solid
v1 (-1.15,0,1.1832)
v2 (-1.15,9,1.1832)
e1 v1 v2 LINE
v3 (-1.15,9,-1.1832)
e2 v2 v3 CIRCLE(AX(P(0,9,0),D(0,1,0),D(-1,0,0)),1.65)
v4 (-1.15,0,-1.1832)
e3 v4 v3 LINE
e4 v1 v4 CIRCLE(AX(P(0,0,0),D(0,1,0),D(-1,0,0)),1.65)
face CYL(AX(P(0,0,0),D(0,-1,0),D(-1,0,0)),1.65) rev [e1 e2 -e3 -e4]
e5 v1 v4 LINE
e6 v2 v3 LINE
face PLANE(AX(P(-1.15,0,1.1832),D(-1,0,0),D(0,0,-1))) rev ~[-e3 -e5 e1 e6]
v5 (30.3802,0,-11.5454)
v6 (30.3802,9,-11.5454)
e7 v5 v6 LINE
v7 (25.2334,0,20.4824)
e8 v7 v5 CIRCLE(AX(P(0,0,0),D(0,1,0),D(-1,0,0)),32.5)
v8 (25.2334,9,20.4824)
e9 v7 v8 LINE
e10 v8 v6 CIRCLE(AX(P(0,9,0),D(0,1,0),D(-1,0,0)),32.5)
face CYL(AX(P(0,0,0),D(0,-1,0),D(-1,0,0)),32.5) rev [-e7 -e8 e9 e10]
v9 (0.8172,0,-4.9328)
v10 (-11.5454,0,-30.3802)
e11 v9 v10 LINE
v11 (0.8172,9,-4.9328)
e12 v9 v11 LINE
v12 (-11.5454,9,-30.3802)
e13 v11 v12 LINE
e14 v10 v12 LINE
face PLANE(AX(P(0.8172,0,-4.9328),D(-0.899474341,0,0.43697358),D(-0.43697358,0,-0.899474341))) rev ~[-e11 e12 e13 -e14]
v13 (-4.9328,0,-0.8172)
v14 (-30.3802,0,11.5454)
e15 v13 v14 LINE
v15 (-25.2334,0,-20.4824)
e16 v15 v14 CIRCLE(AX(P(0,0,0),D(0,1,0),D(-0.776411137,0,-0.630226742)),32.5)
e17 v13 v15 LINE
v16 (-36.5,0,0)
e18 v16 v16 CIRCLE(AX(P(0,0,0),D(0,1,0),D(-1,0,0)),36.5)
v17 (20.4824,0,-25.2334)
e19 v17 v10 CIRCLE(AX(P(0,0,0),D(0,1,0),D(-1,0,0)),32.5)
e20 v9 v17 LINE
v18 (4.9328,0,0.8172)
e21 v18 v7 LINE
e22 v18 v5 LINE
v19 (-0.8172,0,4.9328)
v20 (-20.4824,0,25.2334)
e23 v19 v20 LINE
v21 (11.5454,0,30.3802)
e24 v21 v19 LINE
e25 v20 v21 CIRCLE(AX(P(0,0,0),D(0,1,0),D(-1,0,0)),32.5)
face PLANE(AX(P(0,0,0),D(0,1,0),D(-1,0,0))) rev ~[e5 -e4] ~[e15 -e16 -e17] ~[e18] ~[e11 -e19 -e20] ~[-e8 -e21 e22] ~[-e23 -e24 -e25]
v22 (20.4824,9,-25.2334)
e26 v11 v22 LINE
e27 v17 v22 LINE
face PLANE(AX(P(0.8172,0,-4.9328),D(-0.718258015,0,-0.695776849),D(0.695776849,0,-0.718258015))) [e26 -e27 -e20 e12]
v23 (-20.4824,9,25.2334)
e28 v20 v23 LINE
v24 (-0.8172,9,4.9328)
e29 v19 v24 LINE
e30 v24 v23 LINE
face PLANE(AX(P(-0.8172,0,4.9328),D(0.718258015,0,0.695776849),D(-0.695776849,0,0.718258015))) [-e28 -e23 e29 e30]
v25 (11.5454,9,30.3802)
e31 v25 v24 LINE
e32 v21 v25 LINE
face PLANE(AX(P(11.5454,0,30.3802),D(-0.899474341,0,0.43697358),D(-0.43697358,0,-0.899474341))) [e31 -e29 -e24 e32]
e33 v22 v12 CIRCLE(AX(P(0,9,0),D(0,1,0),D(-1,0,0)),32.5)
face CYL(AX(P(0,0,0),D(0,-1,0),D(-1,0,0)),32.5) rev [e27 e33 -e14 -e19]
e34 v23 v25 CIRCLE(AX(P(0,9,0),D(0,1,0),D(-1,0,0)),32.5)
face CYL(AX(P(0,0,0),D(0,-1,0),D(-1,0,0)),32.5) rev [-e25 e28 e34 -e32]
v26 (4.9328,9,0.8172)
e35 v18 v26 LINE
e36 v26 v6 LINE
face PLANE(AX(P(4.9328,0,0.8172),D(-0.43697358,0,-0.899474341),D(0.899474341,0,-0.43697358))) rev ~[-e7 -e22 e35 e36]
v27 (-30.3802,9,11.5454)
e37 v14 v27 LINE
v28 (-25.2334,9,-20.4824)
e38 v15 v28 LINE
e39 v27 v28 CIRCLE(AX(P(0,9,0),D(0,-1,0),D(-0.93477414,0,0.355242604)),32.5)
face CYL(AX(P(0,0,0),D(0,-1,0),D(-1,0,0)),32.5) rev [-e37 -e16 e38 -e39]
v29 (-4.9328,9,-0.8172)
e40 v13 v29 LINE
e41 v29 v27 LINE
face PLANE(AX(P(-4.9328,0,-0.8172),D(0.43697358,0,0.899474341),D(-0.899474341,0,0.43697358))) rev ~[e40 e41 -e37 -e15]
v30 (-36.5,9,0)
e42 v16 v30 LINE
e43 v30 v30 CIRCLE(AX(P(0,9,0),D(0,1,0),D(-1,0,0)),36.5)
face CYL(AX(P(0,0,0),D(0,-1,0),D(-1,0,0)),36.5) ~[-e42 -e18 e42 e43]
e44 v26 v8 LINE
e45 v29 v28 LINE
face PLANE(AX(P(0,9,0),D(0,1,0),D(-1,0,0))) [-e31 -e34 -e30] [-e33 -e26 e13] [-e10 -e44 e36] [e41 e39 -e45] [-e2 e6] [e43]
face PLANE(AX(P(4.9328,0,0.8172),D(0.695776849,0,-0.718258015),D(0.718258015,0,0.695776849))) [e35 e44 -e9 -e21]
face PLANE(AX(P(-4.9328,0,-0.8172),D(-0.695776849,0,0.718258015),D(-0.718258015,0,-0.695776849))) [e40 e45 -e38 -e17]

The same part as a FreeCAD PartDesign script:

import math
import FreeCAD as App
import Part
import Sketcher

V = App.Vector
Q = App.Units.Quantity

doc = App.newDocument("Part")
body = doc.addObject("PartDesign::Body", "Body")

# Sketch on XZ plane
sketch1 = doc.addObject("Sketcher::SketchObject", "Sketch")
body.addObject(sketch1)
sketch1.AttachmentSupport = (doc.XZ_Plane, [""])
sketch1.MapMode = "FlatFace"
sketch1.addGeometry([
    Part.Circle(V(0, 0, 0), V(0, 0, 1), 36.5),  # 0
    Part.ArcOfCircle(Part.Circle(V(0, 0, 0), V(0, 0, 1), 32.5), math.radians(159), math.radians(219)),  # 1
    Part.LineSegment(V(-25.2, -20.5, 0), V(-4.9, -0.8, 0)),  # 2
    Part.LineSegment(V(-4.9, -0.8, 0), V(-30.4, 11.5, 0)),  # 3
    Part.ArcOfCircle(Part.Circle(V(0, 0, 0), V(0, 0, 1), 32.5), math.radians(69), math.radians(129)),  # 4
    Part.LineSegment(V(-20.5, 25.2, 0), V(-0.8, 4.9, 0)),  # 5
    Part.LineSegment(V(-0.8, 4.9, 0), V(11.5, 30.4, 0)),  # 6
    Part.ArcOfCircle(Part.Circle(V(0, 0, 0), V(0, 0, 1), 32.5), math.radians(-21), math.radians(39)),  # 7
    Part.LineSegment(V(25.2, 20.5, 0), V(4.9, 0.8, 0)),  # 8
    Part.LineSegment(V(4.9, 0.8, 0), V(30.4, -11.5, 0)),  # 9
    Part.ArcOfCircle(Part.Circle(V(0, 0, 0), V(0, 0, 1), 32.5), math.radians(-111), math.radians(-51)),  # 10
    Part.LineSegment(V(20.5, -25.2, 0), V(0.8, -4.9, 0)),  # 11
    Part.LineSegment(V(0.8, -4.9, 0), V(-11.5, -30.4, 0)),  # 12
    Part.ArcOfCircle(Part.Circle(V(0, 0, 0), V(0, 0, 1), 1.6), math.radians(-134), math.radians(134)),  # 13
    Part.LineSegment(V(-1.1, -1.2, 0), V(-1.1, 1.2, 0)),  # 14
], False)
sketch1.addConstraint([
    Sketcher.Constraint("Coincident", 1, 2, 2, 1),
    Sketcher.Constraint("Coincident", 2, 2, 3, 1),
    Sketcher.Constraint("Coincident", 3, 2, 1, 1),
    Sketcher.Constraint("Coincident", 4, 2, 5, 1),
    Sketcher.Constraint("Coincident", 5, 2, 6, 1),
    Sketcher.Constraint("Coincident", 6, 2, 4, 1),
    Sketcher.Constraint("Coincident", 7, 2, 8, 1),
    Sketcher.Constraint("Coincident", 8, 2, 9, 1),
    Sketcher.Constraint("Coincident", 9, 2, 7, 1),
    Sketcher.Constraint("Coincident", 10, 2, 11, 1),
    Sketcher.Constraint("Coincident", 11, 2, 12, 1),
    Sketcher.Constraint("Coincident", 12, 2, 10, 1),
    Sketcher.Constraint("Coincident", 13, 1, 14, 1),
    Sketcher.Constraint("Coincident", 14, 2, 13, 2),
    Sketcher.Constraint("Vertical", 14),
    Sketcher.Constraint("Coincident", 0, 3, -1, 1),
    Sketcher.Constraint("Coincident", 1, 3, -1, 1),
    Sketcher.Constraint("Coincident", 4, 3, -1, 1),
    Sketcher.Constraint("Coincident", 7, 3, -1, 1),
    Sketcher.Constraint("Coincident", 10, 3, -1, 1),
    Sketcher.Constraint("Coincident", 13, 3, -1, 1),
    Sketcher.Constraint("Equal", 1, 4),
    Sketcher.Constraint("Equal", 4, 7),
    Sketcher.Constraint("Equal", 7, 10),
    Sketcher.Constraint("Symmetric", 2, 2, 8, 2, -1, 1),
    Sketcher.Constraint("Symmetric", 5, 2, 11, 2, -1, 1),
    Sketcher.Constraint("Perpendicular", 2, 5),
    Sketcher.Constraint("Perpendicular", 3, 6),
    Sketcher.Constraint("Perpendicular", 5, 8),
    Sketcher.Constraint("Perpendicular", 6, 9),
    Sketcher.Constraint("Perpendicular", 8, 11),
    Sketcher.Constraint("Perpendicular", 9, 12),
    Sketcher.Constraint("Equal", 2, 5),
    Sketcher.Constraint("Equal", 3, 6),
    Sketcher.Constraint("Diameter", 0, Q("73 mm")),
    Sketcher.Constraint("Radius", 1, Q("32.5 mm")),
    Sketcher.Constraint("Radius", 13, Q("1.65 mm")),
    Sketcher.Constraint("Angle", 2, Q("44.0892 deg")),
    Sketcher.Constraint("Angle", 3, Q("154.089 deg")),
    Sketcher.Constraint("DistanceX", 13, 1, -1, 1, Q("1.15 mm")),
    Sketcher.Constraint("DistanceY", 3, 2, 4, 2, Q("13.688 mm")),
    Sketcher.Constraint("DistanceY", 12, 2, 2, 2, Q("29.563 mm")),
])
pad1 = doc.addObject("PartDesign::Pad", "Pad")
body.addObject(pad1)
pad1.Profile = sketch1
pad1.Length = 9
pad1.Reversed = True

doc.recompute()
